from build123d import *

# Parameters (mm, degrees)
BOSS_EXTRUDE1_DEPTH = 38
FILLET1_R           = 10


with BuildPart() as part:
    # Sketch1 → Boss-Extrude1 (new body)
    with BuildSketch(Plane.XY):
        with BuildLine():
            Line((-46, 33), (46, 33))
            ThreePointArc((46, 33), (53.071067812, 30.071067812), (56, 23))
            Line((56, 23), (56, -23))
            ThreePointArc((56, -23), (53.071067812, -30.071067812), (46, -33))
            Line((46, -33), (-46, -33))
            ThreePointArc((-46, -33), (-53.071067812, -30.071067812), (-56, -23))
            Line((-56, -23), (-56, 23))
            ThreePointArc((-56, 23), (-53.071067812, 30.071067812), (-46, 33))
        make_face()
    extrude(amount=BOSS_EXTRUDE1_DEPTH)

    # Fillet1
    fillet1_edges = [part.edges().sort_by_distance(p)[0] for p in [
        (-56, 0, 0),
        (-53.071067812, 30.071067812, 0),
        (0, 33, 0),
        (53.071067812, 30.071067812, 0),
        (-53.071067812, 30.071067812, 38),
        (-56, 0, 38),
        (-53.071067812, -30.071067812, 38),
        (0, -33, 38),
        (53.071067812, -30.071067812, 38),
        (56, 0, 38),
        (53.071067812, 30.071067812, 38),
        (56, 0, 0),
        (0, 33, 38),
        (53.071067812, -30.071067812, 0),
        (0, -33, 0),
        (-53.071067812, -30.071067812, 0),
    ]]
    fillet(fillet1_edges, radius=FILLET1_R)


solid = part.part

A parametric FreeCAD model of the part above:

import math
import FreeCAD as App
import Part
import Sketcher
from FreeCAD import Vector


def edges_at(feature, points):
    """Names of the edges that pass closest to the given points."""
    edges = feature.Shape.Edges
    near = lambda p: min(range(len(edges)), key=lambda i: edges[i].distToShape(Part.Vertex(*p))[0])
    return sorted({f"Edge{near(p) + 1}" for p in points})

doc = App.newDocument("Part")
body = doc.addObject("PartDesign::Body", "Body")

# Sketch on XY plane
sketch1 = body.newObject("Sketcher::SketchObject", "Sketch")
sketch1.AttachmentSupport = (doc.getObject("XY_Plane"), [""])
sketch1.MapMode = "FlatFace"
sketch1.addGeometry(Part.LineSegment(Vector(46, 33, 0), Vector(-46, 33, 0)), False)
sketch1.addGeometry(Part.ArcOfCircle(Part.Circle(Vector(-46, 23, 0), Vector(0, 0, 1), 10), math.radians(90), math.radians(180)), False)
sketch1.addGeometry(Part.LineSegment(Vector(-56, 23, 0), Vector(-56, -23, 0)), False)
sketch1.addGeometry(Part.ArcOfCircle(Part.Circle(Vector(-46, -23, 0), Vector(0, 0, 1), 10), math.radians(180), math.radians(270)), False)
sketch1.addGeometry(Part.LineSegment(Vector(-46, -33, 0), Vector(46, -33, 0)), False)
sketch1.addGeometry(Part.ArcOfCircle(Part.Circle(Vector(46, -23, 0), Vector(0, 0, 1), 10), math.radians(-90), math.radians(0)), False)
sketch1.addGeometry(Part.LineSegment(Vector(56, -23, 0), Vector(56, 23, 0)), False)
sketch1.addGeometry(Part.ArcOfCircle(Part.Circle(Vector(46, 23, 0), Vector(0, 0, 1), 10), math.radians(0), math.radians(90)), False)
sketch1.addConstraint(Sketcher.Constraint("Tangent", 0, 2, 1, 1))
sketch1.addConstraint(Sketcher.Constraint("Tangent", 1, 2, 2, 1))
sketch1.addConstraint(Sketcher.Constraint("Tangent", 2, 2, 3, 1))
sketch1.addConstraint(Sketcher.Constraint("Tangent", 3, 2, 4, 1))
sketch1.addConstraint(Sketcher.Constraint("Tangent", 4, 2, 5, 1))
sketch1.addConstraint(Sketcher.Constraint("Tangent", 5, 2, 6, 1))
sketch1.addConstraint(Sketcher.Constraint("Tangent", 6, 2, 7, 1))
sketch1.addConstraint(Sketcher.Constraint("Tangent", 7, 2, 0, 1))
sketch1.addConstraint(Sketcher.Constraint("Horizontal", 0))
sketch1.addConstraint(Sketcher.Constraint("Vertical", 2))
sketch1.addConstraint(Sketcher.Constraint("Horizontal", 4))
sketch1.addConstraint(Sketcher.Constraint("Vertical", 6))
sketch1.addConstraint(Sketcher.Constraint("Equal", 1, 3))
sketch1.addConstraint(Sketcher.Constraint("Equal", 3, 5))
sketch1.addConstraint(Sketcher.Constraint("Equal", 5, 7))
sketch1.addConstraint(Sketcher.Constraint("Symmetric", 1, 3, 5, 3, -1, 1))
sketch1.addConstraint(Sketcher.Constraint("Radius", 1, 10.0))
sketch1.addConstraint(Sketcher.Constraint("DistanceX", 0, 2, 0, 1, 92.0))
sketch1.addConstraint(Sketcher.Constraint("DistanceY", 2, 2, 2, 1, 46.0))
pad1 = body.newObject("PartDesign::Pad", "Pad")
pad1.Profile = sketch1
pad1.Length = 38
doc.recompute()

fillet = body.newObject("PartDesign::Fillet", "Fillet")
fillet.Base = (pad1, edges_at(pad1, [
    (-56, 0, 0),
    (-53.071, 30.071, 0),
    (0, 33, 0),
    (53.071, 30.071, 0),
    (-53.071, 30.071, 38),
    (-56, 0, 38),
    (-53.071, -30.071, 38),
    (0, -33, 38),
    (53.071, -30.071, 38),
    (56, 0, 38),
    (53.071, 30.071, 38),
    (56, 0, 0),
    (0, 33, 38),
    (53.071, -30.071, 0),
    (0, -33, 0),
    (-53.071, -30.071, 0),
]))
fillet.Radius = 10

doc.recompute()
